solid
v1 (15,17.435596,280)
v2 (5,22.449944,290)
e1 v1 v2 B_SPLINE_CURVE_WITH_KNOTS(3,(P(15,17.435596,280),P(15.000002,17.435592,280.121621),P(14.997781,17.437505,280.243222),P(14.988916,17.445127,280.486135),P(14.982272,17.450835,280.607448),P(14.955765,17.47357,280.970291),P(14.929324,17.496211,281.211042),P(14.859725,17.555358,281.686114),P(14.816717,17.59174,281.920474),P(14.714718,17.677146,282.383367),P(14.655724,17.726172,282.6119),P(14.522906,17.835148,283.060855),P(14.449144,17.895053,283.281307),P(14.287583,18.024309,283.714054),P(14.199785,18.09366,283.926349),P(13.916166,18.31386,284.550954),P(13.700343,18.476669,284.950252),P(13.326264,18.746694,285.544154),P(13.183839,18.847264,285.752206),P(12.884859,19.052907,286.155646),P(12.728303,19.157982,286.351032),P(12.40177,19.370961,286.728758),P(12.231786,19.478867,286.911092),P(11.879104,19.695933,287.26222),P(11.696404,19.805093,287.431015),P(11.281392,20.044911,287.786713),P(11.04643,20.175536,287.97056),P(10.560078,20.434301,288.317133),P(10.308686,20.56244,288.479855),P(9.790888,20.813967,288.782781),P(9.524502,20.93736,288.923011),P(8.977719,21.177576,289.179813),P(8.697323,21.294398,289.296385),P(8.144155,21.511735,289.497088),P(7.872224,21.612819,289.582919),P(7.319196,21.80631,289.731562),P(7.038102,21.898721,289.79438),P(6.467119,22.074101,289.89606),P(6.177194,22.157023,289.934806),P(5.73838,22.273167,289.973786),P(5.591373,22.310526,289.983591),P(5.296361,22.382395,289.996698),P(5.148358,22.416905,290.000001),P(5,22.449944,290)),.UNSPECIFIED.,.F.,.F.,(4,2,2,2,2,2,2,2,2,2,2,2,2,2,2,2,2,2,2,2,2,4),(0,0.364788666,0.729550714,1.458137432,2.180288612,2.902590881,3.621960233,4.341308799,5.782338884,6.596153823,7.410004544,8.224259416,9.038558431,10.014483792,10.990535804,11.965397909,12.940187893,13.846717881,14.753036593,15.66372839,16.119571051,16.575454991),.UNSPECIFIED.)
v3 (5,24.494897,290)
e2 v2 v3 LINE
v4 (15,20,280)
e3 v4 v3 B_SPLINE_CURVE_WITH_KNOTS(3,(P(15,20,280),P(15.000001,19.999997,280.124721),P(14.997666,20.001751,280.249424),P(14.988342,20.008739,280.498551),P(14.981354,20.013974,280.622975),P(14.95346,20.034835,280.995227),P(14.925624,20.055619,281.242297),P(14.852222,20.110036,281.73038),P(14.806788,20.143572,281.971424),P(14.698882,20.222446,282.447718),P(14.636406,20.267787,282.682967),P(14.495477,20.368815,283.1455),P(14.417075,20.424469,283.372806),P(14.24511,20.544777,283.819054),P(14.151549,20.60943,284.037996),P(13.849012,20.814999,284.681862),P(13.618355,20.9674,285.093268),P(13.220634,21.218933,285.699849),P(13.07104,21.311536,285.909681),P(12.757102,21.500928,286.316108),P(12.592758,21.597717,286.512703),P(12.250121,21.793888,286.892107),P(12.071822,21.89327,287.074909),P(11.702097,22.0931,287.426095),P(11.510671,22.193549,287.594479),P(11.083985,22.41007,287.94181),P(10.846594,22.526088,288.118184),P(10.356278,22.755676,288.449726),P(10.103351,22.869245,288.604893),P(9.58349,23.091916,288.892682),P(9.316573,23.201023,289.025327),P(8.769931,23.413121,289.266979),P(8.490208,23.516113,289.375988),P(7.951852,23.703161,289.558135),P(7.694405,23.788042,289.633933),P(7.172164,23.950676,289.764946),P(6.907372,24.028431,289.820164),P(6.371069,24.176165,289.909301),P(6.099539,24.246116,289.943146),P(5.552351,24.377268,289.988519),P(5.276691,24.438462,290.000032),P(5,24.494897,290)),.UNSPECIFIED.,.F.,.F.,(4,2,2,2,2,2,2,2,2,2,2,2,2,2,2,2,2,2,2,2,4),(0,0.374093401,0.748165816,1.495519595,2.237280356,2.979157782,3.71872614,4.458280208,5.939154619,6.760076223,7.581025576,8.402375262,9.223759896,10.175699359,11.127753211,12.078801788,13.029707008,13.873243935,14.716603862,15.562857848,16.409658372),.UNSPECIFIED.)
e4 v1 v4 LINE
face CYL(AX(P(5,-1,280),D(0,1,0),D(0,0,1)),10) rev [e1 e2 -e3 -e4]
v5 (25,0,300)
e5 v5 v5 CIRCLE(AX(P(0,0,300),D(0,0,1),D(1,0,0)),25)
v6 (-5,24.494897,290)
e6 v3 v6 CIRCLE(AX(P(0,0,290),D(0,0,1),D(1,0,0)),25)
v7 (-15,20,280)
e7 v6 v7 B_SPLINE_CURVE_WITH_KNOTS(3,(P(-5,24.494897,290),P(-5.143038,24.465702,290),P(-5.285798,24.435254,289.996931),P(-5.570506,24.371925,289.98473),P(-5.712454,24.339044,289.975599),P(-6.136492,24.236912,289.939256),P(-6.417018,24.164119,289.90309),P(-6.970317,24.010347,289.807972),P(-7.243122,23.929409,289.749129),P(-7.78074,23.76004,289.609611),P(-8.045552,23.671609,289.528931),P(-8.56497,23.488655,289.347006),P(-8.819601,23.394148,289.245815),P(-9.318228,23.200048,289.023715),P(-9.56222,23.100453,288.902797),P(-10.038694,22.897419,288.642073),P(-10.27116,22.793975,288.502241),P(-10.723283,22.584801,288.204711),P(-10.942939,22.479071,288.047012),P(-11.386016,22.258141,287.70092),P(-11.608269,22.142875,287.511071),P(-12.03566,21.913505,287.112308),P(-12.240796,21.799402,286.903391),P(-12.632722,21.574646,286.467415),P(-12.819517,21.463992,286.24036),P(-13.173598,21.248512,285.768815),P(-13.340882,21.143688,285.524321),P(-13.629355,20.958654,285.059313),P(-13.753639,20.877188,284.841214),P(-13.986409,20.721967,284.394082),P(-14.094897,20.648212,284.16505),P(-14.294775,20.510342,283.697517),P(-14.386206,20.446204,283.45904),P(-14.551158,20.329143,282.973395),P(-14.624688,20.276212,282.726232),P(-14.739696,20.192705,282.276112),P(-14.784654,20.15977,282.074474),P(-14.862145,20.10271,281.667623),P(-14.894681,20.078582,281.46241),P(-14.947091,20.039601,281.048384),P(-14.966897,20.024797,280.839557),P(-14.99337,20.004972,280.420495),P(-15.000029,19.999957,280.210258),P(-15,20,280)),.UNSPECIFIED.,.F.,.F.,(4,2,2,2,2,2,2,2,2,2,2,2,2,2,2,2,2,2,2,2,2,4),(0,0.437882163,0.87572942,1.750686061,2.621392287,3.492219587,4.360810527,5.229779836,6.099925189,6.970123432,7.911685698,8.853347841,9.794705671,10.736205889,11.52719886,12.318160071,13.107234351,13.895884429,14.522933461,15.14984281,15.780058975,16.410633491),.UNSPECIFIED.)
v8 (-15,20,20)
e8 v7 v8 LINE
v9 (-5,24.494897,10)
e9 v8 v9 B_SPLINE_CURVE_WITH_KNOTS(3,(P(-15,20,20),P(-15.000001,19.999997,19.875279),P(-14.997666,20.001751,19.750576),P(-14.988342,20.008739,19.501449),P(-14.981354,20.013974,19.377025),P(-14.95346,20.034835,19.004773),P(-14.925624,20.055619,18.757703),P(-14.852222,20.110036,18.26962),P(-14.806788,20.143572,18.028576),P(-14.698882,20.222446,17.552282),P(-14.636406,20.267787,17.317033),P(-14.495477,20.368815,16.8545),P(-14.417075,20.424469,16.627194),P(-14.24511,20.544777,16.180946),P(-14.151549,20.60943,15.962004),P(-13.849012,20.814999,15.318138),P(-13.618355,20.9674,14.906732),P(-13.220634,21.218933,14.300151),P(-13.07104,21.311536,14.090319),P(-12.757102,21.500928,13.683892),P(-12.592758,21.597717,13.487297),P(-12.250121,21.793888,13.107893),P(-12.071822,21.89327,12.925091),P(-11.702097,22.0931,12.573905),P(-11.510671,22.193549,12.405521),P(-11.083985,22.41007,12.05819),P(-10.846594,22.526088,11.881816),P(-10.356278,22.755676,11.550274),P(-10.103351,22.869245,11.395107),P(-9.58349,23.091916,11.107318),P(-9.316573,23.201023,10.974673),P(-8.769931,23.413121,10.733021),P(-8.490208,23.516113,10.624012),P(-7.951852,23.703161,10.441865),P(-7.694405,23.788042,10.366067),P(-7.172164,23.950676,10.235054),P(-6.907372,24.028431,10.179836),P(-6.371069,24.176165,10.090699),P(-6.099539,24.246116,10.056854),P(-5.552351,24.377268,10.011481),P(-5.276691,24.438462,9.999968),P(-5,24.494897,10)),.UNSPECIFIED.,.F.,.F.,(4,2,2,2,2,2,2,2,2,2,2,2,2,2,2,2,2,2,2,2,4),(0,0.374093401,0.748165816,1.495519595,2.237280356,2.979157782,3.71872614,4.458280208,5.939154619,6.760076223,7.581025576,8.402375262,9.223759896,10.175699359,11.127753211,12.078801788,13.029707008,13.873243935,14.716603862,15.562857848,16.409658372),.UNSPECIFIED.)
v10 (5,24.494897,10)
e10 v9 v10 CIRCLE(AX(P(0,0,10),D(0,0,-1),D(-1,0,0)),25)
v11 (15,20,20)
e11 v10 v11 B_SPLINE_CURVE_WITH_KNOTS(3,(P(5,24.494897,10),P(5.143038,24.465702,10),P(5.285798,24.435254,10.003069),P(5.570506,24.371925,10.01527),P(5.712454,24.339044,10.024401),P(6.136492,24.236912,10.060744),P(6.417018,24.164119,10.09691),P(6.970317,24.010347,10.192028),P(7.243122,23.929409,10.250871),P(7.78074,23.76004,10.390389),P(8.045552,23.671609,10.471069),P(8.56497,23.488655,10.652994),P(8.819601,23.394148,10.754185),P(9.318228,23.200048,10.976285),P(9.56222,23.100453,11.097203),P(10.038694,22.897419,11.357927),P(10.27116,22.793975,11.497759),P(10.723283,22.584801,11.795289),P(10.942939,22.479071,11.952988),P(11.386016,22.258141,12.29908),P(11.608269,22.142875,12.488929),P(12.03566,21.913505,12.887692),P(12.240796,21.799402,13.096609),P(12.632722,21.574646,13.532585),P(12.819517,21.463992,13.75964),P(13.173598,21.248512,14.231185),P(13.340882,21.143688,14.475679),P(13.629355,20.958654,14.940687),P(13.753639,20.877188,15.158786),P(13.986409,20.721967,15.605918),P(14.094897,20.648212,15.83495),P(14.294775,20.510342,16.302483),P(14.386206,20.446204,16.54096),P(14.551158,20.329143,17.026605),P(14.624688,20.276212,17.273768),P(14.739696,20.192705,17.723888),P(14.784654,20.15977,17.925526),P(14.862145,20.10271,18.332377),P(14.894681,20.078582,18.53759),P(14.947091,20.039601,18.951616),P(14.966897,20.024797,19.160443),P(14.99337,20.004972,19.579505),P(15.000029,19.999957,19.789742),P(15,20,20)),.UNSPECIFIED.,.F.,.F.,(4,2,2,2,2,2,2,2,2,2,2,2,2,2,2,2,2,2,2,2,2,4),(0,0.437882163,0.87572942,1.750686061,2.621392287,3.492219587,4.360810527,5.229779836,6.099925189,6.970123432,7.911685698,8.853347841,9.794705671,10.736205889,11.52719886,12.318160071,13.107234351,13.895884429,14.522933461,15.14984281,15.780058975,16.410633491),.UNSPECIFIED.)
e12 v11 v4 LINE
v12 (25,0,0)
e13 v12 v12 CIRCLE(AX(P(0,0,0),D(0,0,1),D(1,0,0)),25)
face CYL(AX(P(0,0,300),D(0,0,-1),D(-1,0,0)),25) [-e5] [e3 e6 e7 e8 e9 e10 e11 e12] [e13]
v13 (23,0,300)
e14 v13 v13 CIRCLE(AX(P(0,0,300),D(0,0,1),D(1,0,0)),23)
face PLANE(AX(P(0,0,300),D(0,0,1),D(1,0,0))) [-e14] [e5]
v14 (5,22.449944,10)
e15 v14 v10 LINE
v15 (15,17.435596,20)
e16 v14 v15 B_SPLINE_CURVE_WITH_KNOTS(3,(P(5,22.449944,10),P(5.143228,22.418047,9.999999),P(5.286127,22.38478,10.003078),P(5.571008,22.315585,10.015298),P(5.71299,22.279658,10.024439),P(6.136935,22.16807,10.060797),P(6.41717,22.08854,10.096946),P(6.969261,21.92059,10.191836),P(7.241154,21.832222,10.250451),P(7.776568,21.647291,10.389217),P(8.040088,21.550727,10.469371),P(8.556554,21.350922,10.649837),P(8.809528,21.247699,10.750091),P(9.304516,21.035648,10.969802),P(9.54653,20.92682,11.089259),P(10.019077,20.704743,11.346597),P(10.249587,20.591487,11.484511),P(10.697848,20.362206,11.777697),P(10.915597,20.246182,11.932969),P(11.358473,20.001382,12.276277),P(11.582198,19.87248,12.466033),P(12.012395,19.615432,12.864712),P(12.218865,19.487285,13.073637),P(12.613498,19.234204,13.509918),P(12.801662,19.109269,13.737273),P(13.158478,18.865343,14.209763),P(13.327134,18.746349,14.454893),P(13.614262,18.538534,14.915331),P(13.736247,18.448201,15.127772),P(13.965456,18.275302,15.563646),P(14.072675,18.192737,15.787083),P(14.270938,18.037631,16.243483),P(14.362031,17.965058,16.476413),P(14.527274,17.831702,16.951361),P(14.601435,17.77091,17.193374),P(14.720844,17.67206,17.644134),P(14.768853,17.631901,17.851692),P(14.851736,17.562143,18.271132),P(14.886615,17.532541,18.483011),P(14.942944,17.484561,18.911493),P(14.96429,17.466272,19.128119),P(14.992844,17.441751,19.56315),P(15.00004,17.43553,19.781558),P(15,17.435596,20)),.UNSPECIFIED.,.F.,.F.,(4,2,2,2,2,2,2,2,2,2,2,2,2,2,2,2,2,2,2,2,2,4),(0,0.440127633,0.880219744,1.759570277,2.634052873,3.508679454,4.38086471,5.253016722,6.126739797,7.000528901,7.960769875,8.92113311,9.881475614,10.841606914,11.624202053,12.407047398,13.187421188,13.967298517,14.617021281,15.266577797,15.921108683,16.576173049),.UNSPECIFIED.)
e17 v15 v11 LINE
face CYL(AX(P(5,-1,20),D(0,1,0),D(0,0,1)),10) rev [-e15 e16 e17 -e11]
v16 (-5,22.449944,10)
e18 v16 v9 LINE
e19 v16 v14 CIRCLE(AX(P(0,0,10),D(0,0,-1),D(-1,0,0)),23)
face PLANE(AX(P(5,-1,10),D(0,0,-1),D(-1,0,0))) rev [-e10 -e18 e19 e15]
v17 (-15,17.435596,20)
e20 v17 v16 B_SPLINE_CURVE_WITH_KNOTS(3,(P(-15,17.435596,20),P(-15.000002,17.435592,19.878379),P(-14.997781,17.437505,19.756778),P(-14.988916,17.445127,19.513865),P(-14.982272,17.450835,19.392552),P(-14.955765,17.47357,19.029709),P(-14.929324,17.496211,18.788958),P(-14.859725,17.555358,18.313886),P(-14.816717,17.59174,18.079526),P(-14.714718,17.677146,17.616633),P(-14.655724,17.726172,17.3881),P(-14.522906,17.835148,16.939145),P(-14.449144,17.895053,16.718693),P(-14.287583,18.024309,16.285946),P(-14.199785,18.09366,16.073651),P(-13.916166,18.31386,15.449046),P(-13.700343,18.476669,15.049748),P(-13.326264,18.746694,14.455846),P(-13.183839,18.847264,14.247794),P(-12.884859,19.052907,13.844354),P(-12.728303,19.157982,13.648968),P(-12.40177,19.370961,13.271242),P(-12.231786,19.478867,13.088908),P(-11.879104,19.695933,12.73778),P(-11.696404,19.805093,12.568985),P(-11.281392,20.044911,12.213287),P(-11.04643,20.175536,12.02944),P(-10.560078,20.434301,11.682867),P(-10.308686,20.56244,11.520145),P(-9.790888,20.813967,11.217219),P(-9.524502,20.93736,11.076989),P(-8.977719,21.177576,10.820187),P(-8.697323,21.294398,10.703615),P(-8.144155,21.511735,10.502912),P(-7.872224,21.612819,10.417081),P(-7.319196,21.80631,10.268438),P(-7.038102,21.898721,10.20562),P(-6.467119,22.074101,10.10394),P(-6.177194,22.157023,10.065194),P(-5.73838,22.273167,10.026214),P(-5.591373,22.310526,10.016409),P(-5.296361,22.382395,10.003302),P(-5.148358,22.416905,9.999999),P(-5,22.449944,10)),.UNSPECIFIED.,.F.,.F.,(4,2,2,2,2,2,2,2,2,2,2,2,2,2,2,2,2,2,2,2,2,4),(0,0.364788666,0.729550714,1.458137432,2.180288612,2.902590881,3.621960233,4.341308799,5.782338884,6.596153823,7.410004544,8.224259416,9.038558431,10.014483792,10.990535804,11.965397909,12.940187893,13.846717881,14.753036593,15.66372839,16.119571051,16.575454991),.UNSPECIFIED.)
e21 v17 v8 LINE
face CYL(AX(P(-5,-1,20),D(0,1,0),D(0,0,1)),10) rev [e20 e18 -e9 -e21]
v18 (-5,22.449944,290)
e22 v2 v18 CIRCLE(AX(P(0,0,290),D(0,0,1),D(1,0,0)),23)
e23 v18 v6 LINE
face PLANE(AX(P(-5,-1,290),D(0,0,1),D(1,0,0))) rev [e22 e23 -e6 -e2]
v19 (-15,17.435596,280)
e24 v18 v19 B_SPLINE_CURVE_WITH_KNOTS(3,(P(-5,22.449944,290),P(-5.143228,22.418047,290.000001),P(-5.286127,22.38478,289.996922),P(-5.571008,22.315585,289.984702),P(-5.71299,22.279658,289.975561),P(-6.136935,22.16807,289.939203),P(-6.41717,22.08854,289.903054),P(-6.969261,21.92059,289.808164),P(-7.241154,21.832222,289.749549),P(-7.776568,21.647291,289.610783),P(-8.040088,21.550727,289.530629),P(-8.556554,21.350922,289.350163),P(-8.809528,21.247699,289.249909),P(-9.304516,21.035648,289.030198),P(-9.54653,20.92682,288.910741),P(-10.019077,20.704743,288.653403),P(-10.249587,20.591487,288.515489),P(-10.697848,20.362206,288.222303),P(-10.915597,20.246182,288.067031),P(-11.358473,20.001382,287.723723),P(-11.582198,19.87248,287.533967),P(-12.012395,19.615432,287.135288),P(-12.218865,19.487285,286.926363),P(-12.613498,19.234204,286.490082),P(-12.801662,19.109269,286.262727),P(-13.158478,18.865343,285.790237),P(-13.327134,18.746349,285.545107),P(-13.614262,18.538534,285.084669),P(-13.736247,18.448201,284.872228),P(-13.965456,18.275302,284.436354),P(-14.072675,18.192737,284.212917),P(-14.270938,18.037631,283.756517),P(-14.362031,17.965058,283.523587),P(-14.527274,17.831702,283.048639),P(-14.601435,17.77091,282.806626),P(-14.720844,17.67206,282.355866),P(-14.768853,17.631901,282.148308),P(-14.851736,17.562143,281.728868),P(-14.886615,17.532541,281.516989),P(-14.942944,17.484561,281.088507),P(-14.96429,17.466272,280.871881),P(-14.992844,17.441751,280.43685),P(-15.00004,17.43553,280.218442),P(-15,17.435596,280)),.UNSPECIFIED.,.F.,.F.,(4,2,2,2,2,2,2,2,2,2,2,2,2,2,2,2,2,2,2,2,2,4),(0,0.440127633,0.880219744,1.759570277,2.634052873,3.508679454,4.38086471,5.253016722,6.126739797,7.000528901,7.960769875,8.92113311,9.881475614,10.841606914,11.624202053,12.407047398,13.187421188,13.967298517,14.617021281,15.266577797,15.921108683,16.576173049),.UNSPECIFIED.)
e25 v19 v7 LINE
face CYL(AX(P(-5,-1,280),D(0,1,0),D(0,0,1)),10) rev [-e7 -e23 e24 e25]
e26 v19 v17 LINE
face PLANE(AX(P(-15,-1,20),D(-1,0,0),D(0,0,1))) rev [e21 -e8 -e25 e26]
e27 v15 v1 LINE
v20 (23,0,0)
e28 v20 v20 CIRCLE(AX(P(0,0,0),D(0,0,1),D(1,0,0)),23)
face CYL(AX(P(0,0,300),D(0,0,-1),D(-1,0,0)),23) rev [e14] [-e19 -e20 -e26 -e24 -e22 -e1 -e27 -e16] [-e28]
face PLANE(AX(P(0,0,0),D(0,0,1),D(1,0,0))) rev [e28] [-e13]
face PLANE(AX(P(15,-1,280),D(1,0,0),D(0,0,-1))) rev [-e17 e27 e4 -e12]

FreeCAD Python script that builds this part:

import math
import FreeCAD as App
import Part
import Sketcher
Q = App.Units.Quantity

doc = App.newDocument("Part")
body = doc.addObject("PartDesign::Body", "Body")

sketch1 = doc.addObject("Sketcher::SketchObject", "Sketch")
body.addObject(sketch1)
sketch1.AttachmentSupport = (doc.XY_Plane, [""])
sketch1.MapMode = "FlatFace"
sketch1.addGeometry([
    Part.Circle(App.Vector(0, 0, 0), App.Vector(0, 0, 1), 25),
    Part.Circle(App.Vector(0, 0, 0), App.Vector(0, 0, 1), 23),
], False)
sketch1.addConstraint([
    Sketcher.Constraint("Coincident", 0, 3, -1, 1),
    Sketcher.Constraint("Coincident", 1, 3, -1, 1),
    Sketcher.Constraint("Diameter", 0, Q("50 mm")),
    Sketcher.Constraint("Diameter", 1, Q("46 mm")),
])
pad1 = doc.addObject("PartDesign::Pad", "Pad")
body.addObject(pad1)
pad1.Profile = sketch1
pad1.Length = 300

sketch2 = doc.addObject("Sketcher::SketchObject", "Sketch001")
body.addObject(sketch2)
sketch2.AttachmentSupport = (doc.XZ_Plane, [""])
sketch2.MapMode = "FlatFace"
sketch2.AttachmentOffset = App.Placement(App.Vector(0, 0, -50), App.Rotation())
sketch2.addGeometry([
    Part.LineSegment(App.Vector(5, 10, 0), App.Vector(-5, 10, 0)),
    Part.ArcOfCircle(Part.Circle(App.Vector(-5, 20, 0), App.Vector(0, 0, 1), 10), math.radians(180), math.radians(270)),
    Part.LineSegment(App.Vector(-15, 20, 0), App.Vector(-15, 280, 0)),
    Part.ArcOfCircle(Part.Circle(App.Vector(-5, 280, 0), App.Vector(0, 0, 1), 10), math.radians(90), math.radians(180)),
    Part.LineSegment(App.Vector(-5, 290, 0), App.Vector(5, 290, 0)),
    Part.ArcOfCircle(Part.Circle(App.Vector(5, 280, 0), App.Vector(0, 0, 1), 10), math.radians(0), math.radians(90)),
    Part.LineSegment(App.Vector(15, 280, 0), App.Vector(15, 20, 0)),
    Part.ArcOfCircle(Part.Circle(App.Vector(5, 20, 0), App.Vector(0, 0, 1), 10), math.radians(-90), math.radians(0)),
], False)
sketch2.addConstraint([
    Sketcher.Constraint("Tangent", 0, 2, 1, 2),
    Sketcher.Constraint("Tangent", 1, 1, 2, 1),
    Sketcher.Constraint("Tangent", 2, 2, 3, 2),
    Sketcher.Constraint("Tangent", 3, 1, 4, 1),
    Sketcher.Constraint("Tangent", 4, 2, 5, 2),
    Sketcher.Constraint("Tangent", 5, 1, 6, 1),
    Sketcher.Constraint("Tangent", 6, 2, 7, 2),
    Sketcher.Constraint("Tangent", 7, 1, 0, 1),
    Sketcher.Constraint("Horizontal", 0),
    Sketcher.Constraint("Vertical", 2),
    Sketcher.Constraint("Horizontal", 4),
    Sketcher.Constraint("Vertical", 6),
    Sketcher.Constraint("Equal", 1, 3),
    Sketcher.Constraint("Equal", 3, 5),
    Sketcher.Constraint("Equal", 5, 7),
    Sketcher.Constraint("Radius", 1, Q("10 mm")),
    Sketcher.Constraint("DistanceX", 0, 2, 0, 1, Q("10 mm")),
    Sketcher.Constraint("DistanceY", 2, 1, 2, 2, Q("260 mm")),
    Sketcher.Constraint("DistanceX", 1, 3, -1, 1, Q("5 mm")),
    Sketcher.Constraint("DistanceY", -1, 1, 1, 3, Q("20 mm")),
])
pocket1 = doc.addObject("PartDesign::Pocket", "Pocket")
body.addObject(pocket1)
pocket1.Profile = sketch2
pocket1.Length = 51
pocket1.Reversed = True

doc.recompute()
